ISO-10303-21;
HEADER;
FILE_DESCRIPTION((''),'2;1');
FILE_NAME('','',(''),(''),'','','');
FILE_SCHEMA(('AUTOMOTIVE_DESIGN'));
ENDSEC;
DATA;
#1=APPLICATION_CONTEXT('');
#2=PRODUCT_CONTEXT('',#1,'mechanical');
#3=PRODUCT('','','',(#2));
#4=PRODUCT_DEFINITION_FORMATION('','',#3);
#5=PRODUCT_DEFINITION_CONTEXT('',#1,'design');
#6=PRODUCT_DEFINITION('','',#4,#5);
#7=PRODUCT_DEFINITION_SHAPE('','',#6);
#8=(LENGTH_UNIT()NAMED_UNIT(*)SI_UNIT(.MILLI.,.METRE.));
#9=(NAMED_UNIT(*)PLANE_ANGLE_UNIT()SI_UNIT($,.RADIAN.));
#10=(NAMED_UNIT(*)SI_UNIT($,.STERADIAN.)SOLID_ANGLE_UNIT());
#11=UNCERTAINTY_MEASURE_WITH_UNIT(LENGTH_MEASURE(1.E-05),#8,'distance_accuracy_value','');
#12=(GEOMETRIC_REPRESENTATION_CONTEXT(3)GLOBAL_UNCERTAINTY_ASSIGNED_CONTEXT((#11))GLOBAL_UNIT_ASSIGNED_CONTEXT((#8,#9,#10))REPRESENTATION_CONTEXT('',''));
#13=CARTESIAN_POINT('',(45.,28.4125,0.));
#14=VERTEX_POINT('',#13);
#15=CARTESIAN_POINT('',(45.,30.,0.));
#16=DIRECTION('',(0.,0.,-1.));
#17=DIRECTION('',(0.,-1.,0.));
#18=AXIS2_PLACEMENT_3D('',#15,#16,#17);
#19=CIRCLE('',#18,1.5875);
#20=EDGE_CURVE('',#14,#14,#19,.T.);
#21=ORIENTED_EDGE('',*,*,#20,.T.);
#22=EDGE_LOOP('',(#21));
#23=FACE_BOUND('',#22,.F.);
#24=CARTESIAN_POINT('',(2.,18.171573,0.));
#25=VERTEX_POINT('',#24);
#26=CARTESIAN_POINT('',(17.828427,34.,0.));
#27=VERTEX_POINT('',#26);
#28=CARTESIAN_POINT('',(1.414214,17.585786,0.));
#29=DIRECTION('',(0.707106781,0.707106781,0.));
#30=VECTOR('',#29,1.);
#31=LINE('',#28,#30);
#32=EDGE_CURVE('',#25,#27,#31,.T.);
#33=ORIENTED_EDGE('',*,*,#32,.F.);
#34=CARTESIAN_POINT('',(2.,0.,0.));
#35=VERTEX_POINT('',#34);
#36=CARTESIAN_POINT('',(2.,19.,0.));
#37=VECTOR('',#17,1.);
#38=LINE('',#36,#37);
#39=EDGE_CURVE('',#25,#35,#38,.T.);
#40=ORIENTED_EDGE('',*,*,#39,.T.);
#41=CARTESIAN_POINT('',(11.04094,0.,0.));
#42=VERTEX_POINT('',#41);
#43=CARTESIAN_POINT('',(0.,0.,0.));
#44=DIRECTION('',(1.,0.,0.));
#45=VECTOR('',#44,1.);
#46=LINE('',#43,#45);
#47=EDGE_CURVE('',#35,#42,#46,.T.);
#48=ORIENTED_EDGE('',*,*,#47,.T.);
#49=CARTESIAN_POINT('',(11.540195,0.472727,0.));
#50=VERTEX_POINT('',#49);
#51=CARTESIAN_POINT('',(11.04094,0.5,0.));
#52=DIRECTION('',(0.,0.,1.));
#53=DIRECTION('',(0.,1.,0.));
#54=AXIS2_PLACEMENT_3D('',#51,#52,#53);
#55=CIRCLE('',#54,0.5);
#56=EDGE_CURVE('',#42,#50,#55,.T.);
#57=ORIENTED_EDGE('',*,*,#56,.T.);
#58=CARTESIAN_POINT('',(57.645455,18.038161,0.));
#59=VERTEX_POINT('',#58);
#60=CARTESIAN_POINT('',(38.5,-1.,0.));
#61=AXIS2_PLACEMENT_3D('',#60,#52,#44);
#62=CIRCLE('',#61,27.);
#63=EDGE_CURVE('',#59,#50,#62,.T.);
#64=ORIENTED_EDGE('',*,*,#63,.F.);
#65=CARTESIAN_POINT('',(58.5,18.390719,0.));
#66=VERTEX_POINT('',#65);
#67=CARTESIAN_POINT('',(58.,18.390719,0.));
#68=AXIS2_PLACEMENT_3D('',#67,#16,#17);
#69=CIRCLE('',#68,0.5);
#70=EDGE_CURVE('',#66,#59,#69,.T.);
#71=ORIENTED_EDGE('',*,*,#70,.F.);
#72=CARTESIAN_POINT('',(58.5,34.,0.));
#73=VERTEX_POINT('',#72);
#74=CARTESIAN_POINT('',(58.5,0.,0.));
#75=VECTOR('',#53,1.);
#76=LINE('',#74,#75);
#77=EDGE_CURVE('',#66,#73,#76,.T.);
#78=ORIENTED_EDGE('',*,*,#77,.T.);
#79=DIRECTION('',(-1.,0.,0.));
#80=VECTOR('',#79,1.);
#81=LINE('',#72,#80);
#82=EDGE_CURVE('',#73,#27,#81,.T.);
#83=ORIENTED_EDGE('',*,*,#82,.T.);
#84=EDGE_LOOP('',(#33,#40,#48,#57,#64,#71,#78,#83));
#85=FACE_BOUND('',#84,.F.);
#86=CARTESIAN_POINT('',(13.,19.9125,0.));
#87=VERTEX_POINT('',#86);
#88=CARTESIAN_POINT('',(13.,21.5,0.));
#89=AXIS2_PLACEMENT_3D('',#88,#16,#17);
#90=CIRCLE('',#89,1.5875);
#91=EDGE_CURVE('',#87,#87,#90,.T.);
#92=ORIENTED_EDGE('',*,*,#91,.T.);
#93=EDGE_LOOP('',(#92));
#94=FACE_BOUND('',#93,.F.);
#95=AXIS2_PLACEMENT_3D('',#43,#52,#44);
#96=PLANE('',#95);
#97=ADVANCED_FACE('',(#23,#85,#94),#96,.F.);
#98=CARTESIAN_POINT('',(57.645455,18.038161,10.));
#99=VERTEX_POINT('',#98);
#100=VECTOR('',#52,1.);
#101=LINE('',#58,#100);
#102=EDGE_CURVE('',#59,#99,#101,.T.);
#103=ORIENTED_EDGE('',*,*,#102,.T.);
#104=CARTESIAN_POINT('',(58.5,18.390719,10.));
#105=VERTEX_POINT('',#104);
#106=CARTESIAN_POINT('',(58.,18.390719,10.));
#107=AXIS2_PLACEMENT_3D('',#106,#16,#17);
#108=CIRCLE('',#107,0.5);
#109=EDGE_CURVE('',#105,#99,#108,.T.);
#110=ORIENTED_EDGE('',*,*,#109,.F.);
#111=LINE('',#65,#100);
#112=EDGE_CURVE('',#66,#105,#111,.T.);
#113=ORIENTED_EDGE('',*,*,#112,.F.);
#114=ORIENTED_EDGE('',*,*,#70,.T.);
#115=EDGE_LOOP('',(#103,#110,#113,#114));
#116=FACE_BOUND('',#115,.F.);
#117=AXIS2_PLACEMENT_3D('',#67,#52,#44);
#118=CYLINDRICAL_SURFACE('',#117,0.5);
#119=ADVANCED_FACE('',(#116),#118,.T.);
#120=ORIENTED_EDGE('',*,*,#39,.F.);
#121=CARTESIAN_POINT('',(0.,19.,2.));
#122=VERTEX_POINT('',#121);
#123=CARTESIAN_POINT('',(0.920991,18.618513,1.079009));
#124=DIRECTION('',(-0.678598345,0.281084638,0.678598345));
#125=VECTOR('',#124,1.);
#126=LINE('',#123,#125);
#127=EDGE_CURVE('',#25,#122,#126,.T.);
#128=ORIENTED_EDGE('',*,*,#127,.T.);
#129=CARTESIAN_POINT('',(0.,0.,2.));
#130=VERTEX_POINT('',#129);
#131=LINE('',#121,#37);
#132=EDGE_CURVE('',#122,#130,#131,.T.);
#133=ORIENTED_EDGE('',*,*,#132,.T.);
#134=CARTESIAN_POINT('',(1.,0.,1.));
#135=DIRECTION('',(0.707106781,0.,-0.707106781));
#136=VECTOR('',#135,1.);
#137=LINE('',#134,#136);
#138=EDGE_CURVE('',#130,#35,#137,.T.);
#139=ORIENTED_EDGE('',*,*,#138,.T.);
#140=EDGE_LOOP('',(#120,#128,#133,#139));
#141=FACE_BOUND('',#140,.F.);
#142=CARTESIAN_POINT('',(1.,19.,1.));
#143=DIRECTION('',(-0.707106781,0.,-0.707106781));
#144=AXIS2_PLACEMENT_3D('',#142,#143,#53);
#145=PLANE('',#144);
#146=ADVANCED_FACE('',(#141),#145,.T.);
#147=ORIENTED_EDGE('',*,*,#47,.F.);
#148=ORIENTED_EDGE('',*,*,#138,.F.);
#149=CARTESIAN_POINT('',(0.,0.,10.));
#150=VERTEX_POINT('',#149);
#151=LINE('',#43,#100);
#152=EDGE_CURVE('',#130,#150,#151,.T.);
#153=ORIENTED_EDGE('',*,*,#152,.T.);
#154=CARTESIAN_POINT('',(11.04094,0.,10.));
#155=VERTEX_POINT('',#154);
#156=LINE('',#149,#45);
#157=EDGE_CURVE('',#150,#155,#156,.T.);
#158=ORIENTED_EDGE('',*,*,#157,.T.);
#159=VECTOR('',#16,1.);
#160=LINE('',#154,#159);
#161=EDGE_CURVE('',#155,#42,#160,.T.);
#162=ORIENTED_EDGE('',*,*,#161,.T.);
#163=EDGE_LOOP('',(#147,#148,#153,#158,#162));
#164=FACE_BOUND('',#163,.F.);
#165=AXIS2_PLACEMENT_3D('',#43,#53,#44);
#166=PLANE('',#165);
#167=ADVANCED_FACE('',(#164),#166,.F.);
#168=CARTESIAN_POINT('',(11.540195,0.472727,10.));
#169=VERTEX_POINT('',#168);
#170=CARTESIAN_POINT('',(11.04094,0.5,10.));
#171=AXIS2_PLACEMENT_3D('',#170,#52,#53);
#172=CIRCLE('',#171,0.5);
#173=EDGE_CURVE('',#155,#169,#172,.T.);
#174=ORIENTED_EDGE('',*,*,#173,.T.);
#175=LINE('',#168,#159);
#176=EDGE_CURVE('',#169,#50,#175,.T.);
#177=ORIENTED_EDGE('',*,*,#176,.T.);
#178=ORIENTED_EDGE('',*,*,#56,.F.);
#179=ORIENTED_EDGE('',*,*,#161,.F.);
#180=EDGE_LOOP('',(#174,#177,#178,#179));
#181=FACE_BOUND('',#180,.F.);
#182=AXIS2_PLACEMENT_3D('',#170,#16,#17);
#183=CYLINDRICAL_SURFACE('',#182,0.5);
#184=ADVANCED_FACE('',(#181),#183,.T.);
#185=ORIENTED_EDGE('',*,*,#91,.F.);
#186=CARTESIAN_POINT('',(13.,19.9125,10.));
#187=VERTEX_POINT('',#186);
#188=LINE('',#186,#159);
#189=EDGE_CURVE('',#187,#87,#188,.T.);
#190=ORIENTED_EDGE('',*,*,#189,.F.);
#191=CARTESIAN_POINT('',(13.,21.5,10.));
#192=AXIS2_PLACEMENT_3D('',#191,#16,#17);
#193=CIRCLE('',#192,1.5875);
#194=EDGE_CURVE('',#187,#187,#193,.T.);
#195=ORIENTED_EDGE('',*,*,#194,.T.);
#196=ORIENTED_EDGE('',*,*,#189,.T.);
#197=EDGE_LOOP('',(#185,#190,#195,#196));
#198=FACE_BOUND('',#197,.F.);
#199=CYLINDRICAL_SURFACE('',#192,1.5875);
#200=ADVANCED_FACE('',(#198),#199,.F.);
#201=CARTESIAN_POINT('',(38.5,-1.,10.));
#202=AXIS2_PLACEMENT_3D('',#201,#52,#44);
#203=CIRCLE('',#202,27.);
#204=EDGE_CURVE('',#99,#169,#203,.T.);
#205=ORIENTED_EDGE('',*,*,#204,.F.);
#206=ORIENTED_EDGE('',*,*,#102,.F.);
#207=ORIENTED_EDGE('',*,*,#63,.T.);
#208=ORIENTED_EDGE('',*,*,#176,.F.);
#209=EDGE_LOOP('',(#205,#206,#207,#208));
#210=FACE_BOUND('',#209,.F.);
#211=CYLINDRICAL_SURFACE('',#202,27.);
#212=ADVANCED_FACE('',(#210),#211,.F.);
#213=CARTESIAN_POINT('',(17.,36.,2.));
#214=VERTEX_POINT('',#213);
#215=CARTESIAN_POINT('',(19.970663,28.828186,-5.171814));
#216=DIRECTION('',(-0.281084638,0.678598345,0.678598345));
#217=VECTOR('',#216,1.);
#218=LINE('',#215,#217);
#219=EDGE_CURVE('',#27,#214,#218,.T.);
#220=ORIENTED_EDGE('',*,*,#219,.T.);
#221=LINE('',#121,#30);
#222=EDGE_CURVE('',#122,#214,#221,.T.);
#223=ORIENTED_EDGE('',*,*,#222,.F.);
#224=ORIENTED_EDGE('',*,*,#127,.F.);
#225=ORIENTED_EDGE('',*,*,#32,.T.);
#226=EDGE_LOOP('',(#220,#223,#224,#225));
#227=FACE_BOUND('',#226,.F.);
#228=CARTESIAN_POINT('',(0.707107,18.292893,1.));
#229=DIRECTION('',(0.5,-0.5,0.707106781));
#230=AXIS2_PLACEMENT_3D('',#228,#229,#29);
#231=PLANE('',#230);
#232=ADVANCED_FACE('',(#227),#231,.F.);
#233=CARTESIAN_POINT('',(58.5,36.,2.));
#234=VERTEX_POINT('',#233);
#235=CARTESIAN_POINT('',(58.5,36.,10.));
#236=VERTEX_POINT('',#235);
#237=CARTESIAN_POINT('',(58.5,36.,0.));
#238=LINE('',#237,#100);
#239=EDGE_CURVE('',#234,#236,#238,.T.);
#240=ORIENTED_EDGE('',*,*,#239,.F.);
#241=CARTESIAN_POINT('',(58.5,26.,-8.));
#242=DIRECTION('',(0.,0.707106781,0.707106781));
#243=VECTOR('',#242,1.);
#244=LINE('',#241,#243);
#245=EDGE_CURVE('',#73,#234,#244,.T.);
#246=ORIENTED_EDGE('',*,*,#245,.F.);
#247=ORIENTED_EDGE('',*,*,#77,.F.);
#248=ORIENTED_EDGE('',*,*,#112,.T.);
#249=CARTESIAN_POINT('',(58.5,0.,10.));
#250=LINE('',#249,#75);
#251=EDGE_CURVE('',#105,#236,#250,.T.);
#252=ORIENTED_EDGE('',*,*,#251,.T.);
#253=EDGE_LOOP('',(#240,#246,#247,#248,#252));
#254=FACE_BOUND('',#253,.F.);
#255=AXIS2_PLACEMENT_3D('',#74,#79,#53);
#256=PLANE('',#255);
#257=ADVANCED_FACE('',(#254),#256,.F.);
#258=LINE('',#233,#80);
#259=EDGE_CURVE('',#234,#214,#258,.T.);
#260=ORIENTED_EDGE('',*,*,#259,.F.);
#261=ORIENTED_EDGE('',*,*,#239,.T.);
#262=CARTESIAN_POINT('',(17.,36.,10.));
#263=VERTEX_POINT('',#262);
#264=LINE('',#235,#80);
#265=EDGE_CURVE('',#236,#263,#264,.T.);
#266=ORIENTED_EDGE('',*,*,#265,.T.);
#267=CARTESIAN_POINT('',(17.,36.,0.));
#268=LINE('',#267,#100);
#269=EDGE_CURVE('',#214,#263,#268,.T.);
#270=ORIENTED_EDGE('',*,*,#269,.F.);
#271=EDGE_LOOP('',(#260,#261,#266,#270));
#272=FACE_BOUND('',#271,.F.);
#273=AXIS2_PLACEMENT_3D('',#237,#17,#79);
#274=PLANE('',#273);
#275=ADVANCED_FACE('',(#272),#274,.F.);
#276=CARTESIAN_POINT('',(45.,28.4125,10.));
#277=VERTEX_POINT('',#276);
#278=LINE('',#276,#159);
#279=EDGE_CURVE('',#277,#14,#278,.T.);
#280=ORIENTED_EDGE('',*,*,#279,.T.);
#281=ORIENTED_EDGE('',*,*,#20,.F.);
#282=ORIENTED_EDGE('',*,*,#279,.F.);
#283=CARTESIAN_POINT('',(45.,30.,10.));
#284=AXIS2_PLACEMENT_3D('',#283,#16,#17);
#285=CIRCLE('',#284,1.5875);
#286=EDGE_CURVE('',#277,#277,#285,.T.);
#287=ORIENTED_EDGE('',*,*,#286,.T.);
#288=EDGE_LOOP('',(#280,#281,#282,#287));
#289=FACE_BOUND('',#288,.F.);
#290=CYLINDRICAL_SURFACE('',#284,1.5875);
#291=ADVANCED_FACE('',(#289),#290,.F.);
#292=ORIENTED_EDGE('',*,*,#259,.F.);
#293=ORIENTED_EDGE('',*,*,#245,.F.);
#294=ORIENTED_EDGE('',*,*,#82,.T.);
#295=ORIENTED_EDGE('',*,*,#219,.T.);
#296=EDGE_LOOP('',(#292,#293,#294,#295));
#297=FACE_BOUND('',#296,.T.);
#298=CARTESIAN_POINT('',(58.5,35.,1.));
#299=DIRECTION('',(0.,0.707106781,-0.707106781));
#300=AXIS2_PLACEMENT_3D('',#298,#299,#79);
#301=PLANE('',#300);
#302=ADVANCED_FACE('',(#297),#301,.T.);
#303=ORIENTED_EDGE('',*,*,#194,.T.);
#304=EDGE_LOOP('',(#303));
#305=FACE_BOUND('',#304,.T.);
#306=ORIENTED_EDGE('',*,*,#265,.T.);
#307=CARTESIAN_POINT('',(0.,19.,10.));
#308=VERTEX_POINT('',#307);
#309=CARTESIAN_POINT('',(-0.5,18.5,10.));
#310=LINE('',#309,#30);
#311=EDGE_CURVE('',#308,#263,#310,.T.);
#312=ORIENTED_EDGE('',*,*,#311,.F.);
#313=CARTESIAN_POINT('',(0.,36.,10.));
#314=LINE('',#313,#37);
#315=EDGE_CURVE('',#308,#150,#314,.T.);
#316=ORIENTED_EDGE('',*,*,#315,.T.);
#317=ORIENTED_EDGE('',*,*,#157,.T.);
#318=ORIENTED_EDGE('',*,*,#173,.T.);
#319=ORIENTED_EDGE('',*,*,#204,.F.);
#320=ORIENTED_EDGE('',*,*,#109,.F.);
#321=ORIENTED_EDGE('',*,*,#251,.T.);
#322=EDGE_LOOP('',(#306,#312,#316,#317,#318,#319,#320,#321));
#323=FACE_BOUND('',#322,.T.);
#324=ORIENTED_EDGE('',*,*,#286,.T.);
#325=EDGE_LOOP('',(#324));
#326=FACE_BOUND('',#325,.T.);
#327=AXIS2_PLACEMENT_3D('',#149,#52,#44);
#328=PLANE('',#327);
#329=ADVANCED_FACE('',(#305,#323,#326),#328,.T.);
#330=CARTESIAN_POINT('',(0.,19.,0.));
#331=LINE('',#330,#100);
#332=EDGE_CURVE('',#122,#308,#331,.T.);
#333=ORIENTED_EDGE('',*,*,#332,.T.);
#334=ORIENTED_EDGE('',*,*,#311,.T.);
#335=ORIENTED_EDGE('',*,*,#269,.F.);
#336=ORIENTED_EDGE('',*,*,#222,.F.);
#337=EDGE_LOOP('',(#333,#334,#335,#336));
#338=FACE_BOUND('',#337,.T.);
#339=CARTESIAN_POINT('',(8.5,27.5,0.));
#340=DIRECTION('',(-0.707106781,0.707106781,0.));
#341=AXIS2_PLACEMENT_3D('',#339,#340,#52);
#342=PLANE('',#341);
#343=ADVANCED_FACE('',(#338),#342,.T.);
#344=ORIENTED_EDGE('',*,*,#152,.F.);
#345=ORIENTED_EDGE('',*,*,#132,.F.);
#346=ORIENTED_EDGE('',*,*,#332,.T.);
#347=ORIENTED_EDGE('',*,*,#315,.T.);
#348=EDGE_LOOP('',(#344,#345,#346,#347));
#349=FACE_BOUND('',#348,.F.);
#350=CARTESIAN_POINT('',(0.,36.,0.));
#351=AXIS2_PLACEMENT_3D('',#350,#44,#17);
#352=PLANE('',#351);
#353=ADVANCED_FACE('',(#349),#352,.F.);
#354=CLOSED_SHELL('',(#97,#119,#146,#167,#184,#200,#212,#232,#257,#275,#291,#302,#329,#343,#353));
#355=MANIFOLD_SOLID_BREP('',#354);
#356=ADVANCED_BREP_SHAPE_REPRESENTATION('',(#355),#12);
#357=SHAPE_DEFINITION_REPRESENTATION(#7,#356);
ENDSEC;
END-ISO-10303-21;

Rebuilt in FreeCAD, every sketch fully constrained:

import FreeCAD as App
import Part
import Sketcher

V = App.Vector


def edges_at(feature, points):
    """Names of the edges that pass closest to the given points."""
    edges = feature.Shape.Edges
    near = lambda p: min(range(len(edges)), key=lambda i: edges[i].distToShape(Part.Vertex(*p))[0])
    return sorted({f"Edge{near(p) + 1}" for p in points})


def add_polygon(sketch, points):
    """Adds a closed chain of lines whose ends are joined by coincident constraints."""
    first, n = sketch.GeometryCount, len(points)
    for a, b in zip(points, points[1:] + points[:1]):
        sketch.addGeometry(Part.LineSegment(App.Vector(*a, 0), App.Vector(*b, 0)), False)
    for i in range(n):
        sketch.addConstraint(Sketcher.Constraint("Coincident", first + i, 2, first + (i + 1) % n, 1))

doc = App.newDocument("Part")
params = doc.addObject("Spreadsheet::Sheet", "Params")
for row, (alias, value) in enumerate([
    ("sketch1_height", "36 mm"),
    ("sketch1_width", "58.5 mm"),
    ("pad1_length", "10 mm"),
    ("sketch2_diameter", "54 mm"),
    ("pocket1_length", "10 mm"),
    ("hole_diameter", "3.175 mm"),
    ("hole_depth", "10 mm"),
    ("chamfer_size", "17 mm"),
    ("chamfer2_size", "2 mm"),
    ("fillet_radius", "0.5 mm"),
], start=1):
    params.set(f"A{row}", alias)
    params.set(f"B{row}", "=" + value)
    params.setAlias(f"B{row}", alias)

body = doc.addObject("PartDesign::Body", "Body")

sketch1 = body.newObject("Sketcher::SketchObject", "Sketch")
sketch1.AttachmentSupport = (doc.getObject("XY_Plane"), [""])
sketch1.MapMode = "FlatFace"
add_polygon(sketch1, [(0, 36), (0, 0), (58, 0), (58, 36)])
sketch1.addConstraint(Sketcher.Constraint("Vertical", 0))
sketch1.addConstraint(Sketcher.Constraint("Horizontal", 1))
sketch1.addConstraint(Sketcher.Constraint("Vertical", 2))
sketch1.addConstraint(Sketcher.Constraint("Horizontal", 3))
sketch1.addConstraint(Sketcher.Constraint("Coincident", 0, 2, -1, 1))
sketch1.addConstraint(Sketcher.Constraint("DistanceY", 0, 2, 0, 1, 36.0))
sketch1.addConstraint(Sketcher.Constraint("DistanceX", 1, 1, 1, 2, 58.5))
sketch1.setExpression("Constraints[9]", "Params.sketch1_height")
sketch1.setExpression("Constraints[10]", "Params.sketch1_width")
pad1 = body.newObject("PartDesign::Pad", "Pad")
pad1.Profile = sketch1
pad1.setExpression("Length", "Params.pad1_length")

sketch2 = body.newObject("Sketcher::SketchObject", "Sketch001")
sketch2.AttachmentSupport = (doc.getObject("XY_Plane"), [""])
sketch2.MapMode = "FlatFace"
sketch2.AttachmentOffset = App.Placement(V(0, 0, 10), App.Rotation())
sketch2.addGeometry(Part.Circle(V(38, -1, 0), V(0, 0, 1), 27), False)
sketch2.addConstraint(Sketcher.Constraint("Diameter", 0, 54.0))
sketch2.addConstraint(Sketcher.Constraint("DistanceY", 0, 3, -1, 1, 1.0))
sketch2.addConstraint(Sketcher.Constraint("DistanceX", -1, 1, 0, 3, 38.5))
sketch2.setExpression("Constraints[0]", "Params.sketch2_diameter")
pocket1 = body.newObject("PartDesign::Pocket", "Pocket")
pocket1.Profile = sketch2
pocket1.setExpression("Length", "Params.pocket1_length")

sketch3 = body.newObject("Sketcher::SketchObject", "Sketch002")
sketch3.AttachmentSupport = (doc.getObject("XY_Plane"), [""])
sketch3.MapMode = "FlatFace"
sketch3.AttachmentOffset = App.Placement(V(0, 0, 10), App.Rotation())
sketch3.addGeometry(Part.Circle(V(13, 21.5, 0), V(0, 0, 1), 1.6), False)
sketch3.addGeometry(Part.Circle(V(45, 30, 0), V(0, 0, 1), 1.6), False)
sketch3.addConstraint(Sketcher.Constraint("Equal", 0, 1))
sketch3.addConstraint(Sketcher.Constraint("Diameter", 0, 3.175))
sketch3.addConstraint(Sketcher.Constraint("DistanceX", -1, 1, 0, 3, 13.0))
sketch3.addConstraint(Sketcher.Constraint("DistanceX", -1, 1, 1, 3, 45.0))
sketch3.addConstraint(Sketcher.Constraint("DistanceY", -1, 1, 1, 3, 30.0))
sketch3.addConstraint(Sketcher.Constraint("DistanceY", -1, 1, 0, 3, 21.5))
doc.recompute()
hole = body.newObject("PartDesign::Hole", "Hole")
hole.Profile = sketch3
hole.ThreadType = "None"
hole.setExpression("Diameter", "Params.hole_diameter")
hole.DepthType = "Dimension"
hole.setExpression("Depth", "Params.hole_depth")
hole.DrillPoint = "Angled"
hole.DrillPointAngle = 118
doc.recompute()

chamfer = body.newObject("PartDesign::Chamfer", "Chamfer")
chamfer.Base = (hole, edges_at(hole, [(0, 36, 5)]))
chamfer.setExpression("Size", "Params.chamfer_size")
doc.recompute()

chamfer2 = body.newObject("PartDesign::Chamfer", "Chamfer001")
chamfer2.Base = (chamfer, edges_at(chamfer, [(37.75, 36, 0), (8.5, 27.5, 0), (0, 9.5, 0)]))
chamfer2.setExpression("Size", "Params.chamfer2_size")
doc.recompute()

fillet = body.newObject("PartDesign::Fillet", "Fillet")
fillet.Base = (chamfer2, edges_at(chamfer2, [(58.5, 17.138, 5), (11.518, 0, 5)]))
fillet.setExpression("Radius", "Params.fillet_radius")

doc.recompute()
